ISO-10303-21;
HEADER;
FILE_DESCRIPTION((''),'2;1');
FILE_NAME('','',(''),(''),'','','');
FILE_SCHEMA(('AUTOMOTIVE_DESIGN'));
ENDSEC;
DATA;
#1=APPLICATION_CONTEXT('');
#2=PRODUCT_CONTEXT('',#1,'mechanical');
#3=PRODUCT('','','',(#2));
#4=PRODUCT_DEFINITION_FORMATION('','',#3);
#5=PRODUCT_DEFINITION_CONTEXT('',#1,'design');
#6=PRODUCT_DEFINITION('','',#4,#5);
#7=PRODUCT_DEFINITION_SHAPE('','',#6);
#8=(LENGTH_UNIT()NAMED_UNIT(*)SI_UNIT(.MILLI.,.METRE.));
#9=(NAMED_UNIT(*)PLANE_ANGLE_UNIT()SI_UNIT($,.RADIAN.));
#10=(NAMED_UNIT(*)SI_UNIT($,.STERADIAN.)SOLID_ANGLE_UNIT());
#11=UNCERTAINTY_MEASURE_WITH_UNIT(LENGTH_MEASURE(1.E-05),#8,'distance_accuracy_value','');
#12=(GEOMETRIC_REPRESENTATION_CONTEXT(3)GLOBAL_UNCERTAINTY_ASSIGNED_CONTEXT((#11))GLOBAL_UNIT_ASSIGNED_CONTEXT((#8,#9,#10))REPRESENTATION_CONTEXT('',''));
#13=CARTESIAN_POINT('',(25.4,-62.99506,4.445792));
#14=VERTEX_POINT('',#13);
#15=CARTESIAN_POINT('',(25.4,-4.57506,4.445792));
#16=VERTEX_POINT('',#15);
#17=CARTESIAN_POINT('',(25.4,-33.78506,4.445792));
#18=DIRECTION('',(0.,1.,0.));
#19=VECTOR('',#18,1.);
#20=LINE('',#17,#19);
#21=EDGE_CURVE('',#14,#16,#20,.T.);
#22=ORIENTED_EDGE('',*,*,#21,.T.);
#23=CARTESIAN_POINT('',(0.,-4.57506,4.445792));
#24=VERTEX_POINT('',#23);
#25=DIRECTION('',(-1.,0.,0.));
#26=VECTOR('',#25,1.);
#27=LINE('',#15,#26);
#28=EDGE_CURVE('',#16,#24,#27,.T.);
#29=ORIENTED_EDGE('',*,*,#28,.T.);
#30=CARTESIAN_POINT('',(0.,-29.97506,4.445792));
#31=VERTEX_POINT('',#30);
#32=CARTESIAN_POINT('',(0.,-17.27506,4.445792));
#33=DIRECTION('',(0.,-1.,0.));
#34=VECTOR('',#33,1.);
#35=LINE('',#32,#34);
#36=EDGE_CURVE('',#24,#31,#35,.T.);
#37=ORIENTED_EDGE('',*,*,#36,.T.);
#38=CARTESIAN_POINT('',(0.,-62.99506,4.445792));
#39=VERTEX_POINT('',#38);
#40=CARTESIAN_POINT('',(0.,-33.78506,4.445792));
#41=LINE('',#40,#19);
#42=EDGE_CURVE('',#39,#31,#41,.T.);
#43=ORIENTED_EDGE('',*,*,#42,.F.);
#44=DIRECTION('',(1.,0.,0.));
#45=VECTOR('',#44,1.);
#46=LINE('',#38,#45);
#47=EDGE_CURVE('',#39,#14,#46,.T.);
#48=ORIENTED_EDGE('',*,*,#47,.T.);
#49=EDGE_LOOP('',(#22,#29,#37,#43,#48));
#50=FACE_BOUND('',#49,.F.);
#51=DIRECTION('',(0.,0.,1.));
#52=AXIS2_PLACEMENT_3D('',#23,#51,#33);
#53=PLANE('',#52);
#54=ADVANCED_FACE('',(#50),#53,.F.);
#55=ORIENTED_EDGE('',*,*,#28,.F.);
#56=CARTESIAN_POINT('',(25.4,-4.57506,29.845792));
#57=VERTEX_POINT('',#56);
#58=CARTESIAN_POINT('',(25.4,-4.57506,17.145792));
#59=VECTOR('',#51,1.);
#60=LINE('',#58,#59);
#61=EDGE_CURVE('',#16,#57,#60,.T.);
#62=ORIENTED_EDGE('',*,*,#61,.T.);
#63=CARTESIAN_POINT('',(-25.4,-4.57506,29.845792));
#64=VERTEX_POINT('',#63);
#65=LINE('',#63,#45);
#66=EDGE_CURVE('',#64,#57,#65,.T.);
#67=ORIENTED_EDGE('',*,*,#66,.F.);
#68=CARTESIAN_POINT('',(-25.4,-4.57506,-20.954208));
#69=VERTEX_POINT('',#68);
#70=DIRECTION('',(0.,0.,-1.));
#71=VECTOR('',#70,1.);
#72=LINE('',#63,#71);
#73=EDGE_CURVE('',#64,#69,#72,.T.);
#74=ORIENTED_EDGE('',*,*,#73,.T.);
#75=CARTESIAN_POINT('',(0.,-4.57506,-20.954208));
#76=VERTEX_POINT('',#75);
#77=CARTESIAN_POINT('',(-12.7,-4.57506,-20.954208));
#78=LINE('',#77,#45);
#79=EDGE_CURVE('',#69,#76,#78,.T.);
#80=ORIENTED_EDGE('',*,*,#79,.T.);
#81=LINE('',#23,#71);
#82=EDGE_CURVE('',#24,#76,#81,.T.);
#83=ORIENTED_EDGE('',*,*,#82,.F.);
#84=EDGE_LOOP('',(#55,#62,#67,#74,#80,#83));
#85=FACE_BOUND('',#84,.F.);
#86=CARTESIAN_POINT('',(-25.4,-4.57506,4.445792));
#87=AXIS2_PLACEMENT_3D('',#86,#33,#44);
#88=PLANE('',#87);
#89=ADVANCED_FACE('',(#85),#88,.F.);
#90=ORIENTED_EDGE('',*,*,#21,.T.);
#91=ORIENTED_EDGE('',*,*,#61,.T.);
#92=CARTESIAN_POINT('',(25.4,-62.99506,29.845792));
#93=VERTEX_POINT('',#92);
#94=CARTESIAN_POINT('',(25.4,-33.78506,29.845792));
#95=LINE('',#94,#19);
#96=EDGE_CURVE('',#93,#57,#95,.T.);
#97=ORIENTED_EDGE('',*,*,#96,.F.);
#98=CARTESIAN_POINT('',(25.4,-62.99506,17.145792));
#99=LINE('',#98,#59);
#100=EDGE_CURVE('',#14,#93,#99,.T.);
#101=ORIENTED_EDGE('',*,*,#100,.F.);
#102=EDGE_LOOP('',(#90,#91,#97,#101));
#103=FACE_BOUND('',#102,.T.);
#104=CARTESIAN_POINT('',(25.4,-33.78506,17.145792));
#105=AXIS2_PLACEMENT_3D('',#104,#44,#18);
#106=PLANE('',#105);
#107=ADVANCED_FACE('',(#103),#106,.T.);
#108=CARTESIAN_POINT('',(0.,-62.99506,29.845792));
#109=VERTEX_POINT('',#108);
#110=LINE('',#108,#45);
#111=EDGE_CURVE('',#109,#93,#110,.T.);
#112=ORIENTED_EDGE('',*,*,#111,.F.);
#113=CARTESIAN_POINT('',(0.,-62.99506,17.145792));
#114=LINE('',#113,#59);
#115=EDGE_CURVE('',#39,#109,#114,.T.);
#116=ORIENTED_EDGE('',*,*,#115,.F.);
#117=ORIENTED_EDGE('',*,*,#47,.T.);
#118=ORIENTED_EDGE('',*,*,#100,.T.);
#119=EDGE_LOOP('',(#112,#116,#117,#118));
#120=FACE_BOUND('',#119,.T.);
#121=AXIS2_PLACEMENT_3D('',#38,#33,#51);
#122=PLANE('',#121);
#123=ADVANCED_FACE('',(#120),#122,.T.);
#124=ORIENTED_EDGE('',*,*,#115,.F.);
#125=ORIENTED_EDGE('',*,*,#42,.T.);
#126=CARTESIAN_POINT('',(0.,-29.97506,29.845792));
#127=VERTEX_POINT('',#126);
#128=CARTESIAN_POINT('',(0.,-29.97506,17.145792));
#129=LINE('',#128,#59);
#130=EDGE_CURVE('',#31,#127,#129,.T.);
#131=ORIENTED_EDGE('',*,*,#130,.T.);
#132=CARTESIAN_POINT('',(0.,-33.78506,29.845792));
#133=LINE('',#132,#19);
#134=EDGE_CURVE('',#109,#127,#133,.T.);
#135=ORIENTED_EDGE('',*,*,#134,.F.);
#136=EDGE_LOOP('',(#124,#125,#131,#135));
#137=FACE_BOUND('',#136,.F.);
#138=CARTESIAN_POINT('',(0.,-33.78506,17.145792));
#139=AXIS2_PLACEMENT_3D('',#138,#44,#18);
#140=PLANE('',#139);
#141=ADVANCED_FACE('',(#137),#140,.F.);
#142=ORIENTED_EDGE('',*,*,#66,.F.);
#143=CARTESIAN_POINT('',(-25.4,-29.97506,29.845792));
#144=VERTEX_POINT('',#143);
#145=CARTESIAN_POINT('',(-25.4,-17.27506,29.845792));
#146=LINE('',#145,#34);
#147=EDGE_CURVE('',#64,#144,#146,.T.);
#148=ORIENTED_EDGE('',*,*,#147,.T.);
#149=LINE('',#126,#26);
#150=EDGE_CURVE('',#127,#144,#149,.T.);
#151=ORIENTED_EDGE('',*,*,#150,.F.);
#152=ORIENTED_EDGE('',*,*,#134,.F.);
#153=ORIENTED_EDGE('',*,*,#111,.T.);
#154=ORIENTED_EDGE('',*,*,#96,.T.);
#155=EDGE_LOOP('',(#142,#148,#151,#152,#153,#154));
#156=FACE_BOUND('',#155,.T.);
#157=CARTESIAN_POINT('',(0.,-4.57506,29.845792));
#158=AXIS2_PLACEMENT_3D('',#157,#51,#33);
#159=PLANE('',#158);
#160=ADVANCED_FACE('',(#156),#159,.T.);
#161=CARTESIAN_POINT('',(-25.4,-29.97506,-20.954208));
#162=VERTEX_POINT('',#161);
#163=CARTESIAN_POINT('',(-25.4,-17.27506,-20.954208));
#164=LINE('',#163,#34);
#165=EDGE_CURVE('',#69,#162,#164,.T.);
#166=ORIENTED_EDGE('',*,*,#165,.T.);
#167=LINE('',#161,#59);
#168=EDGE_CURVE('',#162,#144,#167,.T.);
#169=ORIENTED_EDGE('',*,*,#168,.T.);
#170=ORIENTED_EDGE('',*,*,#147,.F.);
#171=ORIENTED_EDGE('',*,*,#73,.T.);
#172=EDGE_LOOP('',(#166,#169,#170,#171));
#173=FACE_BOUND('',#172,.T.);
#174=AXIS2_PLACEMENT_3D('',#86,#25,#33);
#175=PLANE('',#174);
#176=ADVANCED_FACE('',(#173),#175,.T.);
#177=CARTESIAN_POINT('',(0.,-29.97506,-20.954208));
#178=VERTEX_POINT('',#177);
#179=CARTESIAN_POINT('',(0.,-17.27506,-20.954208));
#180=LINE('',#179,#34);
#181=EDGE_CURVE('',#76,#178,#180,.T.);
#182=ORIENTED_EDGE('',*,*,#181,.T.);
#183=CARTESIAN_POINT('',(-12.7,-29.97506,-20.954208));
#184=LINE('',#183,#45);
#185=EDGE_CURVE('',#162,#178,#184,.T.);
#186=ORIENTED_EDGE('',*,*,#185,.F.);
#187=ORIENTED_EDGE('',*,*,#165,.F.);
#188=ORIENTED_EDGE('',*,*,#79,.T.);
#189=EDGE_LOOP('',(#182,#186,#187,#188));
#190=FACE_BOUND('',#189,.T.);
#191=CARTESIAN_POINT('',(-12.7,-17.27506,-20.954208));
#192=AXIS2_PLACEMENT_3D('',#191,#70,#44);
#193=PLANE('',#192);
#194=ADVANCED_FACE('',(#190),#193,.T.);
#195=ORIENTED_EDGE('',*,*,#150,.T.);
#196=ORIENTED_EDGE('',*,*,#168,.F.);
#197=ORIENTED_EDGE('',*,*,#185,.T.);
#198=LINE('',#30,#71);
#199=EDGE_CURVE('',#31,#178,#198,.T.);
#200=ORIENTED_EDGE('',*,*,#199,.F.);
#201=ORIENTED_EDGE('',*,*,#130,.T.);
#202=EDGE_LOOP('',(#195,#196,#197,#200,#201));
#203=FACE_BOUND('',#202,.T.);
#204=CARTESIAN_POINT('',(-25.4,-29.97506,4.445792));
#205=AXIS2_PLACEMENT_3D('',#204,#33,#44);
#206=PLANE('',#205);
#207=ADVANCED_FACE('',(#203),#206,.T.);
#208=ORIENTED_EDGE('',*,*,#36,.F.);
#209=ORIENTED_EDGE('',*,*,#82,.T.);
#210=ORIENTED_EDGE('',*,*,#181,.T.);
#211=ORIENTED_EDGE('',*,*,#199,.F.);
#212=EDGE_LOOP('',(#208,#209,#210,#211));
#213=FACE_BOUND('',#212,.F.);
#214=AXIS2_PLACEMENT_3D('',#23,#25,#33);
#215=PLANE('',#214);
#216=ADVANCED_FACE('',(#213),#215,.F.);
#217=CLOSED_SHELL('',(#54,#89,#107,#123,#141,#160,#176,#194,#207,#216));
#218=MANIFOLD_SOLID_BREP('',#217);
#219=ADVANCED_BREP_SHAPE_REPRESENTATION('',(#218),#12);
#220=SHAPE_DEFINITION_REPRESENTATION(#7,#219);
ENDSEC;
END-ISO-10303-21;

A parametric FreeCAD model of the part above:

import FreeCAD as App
import Part
import Sketcher

V = App.Vector
Q = App.Units.Quantity


def add_polygon(sketch, points):
    """Adds a closed chain of lines whose ends are joined by coincident constraints."""
    first, n = sketch.GeometryCount, len(points)
    for a, b in zip(points, points[1:] + points[:1]):
        sketch.addGeometry(Part.LineSegment(App.Vector(*a, 0), App.Vector(*b, 0)), False)
    for i in range(n):
        sketch.addConstraint(Sketcher.Constraint("Coincident", first + i, 2, first + (i + 1) % n, 1))

doc = App.newDocument("Part")
body = doc.addObject("PartDesign::Body", "Body")

sketch1 = doc.addObject("Sketcher::SketchObject", "Sketch")
body.addObject(sketch1)
sketch1.AttachmentSupport = (doc.YZ_Plane, [""])
sketch1.MapMode = "FlatFace"
add_polygon(sketch1, [(-63, 30), (-63, 4), (-5, 4), (-5, 30)])
sketch1.addConstraint(Sketcher.Constraint("Vertical", 0))
sketch1.addConstraint(Sketcher.Constraint("Horizontal", 1))
sketch1.addConstraint(Sketcher.Constraint("Vertical", 2))
sketch1.addConstraint(Sketcher.Constraint("Horizontal", 3))
sketch1.addConstraint(Sketcher.Constraint("DistanceY", 0, 2, 0, 1, Q("1 in")))
sketch1.addConstraint(Sketcher.Constraint("DistanceX", 1, 1, 1, 2, Q("2.3 in")))
sketch1.addConstraint(Sketcher.Constraint("DistanceX", 0, 2, -1, 1, Q("62.99506 mm")))
sketch1.addConstraint(Sketcher.Constraint("DistanceY", -1, 1, 2, 2, Q("29.845792 mm")))
pad1 = doc.addObject("PartDesign::Pad", "Pad")
body.addObject(pad1)
pad1.Profile = sketch1
pad1.Length = Q("1 in")

sketch2 = doc.addObject("Sketcher::SketchObject", "Sketch001")
body.addObject(sketch2)
sketch2.AttachmentSupport = (doc.YZ_Plane, [""])
sketch2.MapMode = "FlatFace"
add_polygon(sketch2, [(-5, 30), (-5, 4), (-30, 4), (-30, 30)])
sketch2.addConstraint(Sketcher.Constraint("Vertical", 0))
sketch2.addConstraint(Sketcher.Constraint("Horizontal", 1))
sketch2.addConstraint(Sketcher.Constraint("Vertical", 2))
sketch2.addConstraint(Sketcher.Constraint("Horizontal", 3))
sketch2.addConstraint(Sketcher.Constraint("Equal", 3, 0))
sketch2.addConstraint(Sketcher.Constraint("DistanceX", 1, 2, 1, 1, Q("1 in")))
sketch2.addConstraint(Sketcher.Constraint("DistanceX", 0, 2, -1, 1, Q("4.57506 mm")))
sketch2.addConstraint(Sketcher.Constraint("DistanceY", -1, 1, 2, 2, Q("29.845792 mm")))
pad2 = doc.addObject("PartDesign::Pad", "Pad001")
body.addObject(pad2)
pad2.Profile = sketch2
pad2.Length = Q("1 in")
pad2.Reversed = True

sketch3 = doc.addObject("Sketcher::SketchObject", "Sketch002")
body.addObject(sketch3)
sketch3.AttachmentSupport = (doc.XY_Plane, [""])
sketch3.MapMode = "FlatFace"
sketch3.AttachmentOffset = App.Placement(V(0, 0, 4.445792), App.Rotation())
add_polygon(sketch3, [(-25, -30), (-25, -5), (0, -5), (0, -30)])
sketch3.addConstraint(Sketcher.Constraint("Vertical", 0))
sketch3.addConstraint(Sketcher.Constraint("Horizontal", 1))
sketch3.addConstraint(Sketcher.Constraint("Vertical", 2))
sketch3.addConstraint(Sketcher.Constraint("Horizontal", 3))
sketch3.addConstraint(Sketcher.Constraint("PointOnObject", 1, 2, -2))
sketch3.addConstraint(Sketcher.Constraint("Equal", 3, 0))
sketch3.addConstraint(Sketcher.Constraint("DistanceX", 1, 1, 1, 2, Q("1 in")))
sketch3.addConstraint(Sketcher.Constraint("DistanceY", 0, 2, -1, 1, Q("4.57506 mm")))
pad3 = doc.addObject("PartDesign::Pad", "Pad002")
body.addObject(pad3)
pad3.Profile = sketch3
pad3.Length = Q("1 in")
pad3.Reversed = True

doc.recompute()
